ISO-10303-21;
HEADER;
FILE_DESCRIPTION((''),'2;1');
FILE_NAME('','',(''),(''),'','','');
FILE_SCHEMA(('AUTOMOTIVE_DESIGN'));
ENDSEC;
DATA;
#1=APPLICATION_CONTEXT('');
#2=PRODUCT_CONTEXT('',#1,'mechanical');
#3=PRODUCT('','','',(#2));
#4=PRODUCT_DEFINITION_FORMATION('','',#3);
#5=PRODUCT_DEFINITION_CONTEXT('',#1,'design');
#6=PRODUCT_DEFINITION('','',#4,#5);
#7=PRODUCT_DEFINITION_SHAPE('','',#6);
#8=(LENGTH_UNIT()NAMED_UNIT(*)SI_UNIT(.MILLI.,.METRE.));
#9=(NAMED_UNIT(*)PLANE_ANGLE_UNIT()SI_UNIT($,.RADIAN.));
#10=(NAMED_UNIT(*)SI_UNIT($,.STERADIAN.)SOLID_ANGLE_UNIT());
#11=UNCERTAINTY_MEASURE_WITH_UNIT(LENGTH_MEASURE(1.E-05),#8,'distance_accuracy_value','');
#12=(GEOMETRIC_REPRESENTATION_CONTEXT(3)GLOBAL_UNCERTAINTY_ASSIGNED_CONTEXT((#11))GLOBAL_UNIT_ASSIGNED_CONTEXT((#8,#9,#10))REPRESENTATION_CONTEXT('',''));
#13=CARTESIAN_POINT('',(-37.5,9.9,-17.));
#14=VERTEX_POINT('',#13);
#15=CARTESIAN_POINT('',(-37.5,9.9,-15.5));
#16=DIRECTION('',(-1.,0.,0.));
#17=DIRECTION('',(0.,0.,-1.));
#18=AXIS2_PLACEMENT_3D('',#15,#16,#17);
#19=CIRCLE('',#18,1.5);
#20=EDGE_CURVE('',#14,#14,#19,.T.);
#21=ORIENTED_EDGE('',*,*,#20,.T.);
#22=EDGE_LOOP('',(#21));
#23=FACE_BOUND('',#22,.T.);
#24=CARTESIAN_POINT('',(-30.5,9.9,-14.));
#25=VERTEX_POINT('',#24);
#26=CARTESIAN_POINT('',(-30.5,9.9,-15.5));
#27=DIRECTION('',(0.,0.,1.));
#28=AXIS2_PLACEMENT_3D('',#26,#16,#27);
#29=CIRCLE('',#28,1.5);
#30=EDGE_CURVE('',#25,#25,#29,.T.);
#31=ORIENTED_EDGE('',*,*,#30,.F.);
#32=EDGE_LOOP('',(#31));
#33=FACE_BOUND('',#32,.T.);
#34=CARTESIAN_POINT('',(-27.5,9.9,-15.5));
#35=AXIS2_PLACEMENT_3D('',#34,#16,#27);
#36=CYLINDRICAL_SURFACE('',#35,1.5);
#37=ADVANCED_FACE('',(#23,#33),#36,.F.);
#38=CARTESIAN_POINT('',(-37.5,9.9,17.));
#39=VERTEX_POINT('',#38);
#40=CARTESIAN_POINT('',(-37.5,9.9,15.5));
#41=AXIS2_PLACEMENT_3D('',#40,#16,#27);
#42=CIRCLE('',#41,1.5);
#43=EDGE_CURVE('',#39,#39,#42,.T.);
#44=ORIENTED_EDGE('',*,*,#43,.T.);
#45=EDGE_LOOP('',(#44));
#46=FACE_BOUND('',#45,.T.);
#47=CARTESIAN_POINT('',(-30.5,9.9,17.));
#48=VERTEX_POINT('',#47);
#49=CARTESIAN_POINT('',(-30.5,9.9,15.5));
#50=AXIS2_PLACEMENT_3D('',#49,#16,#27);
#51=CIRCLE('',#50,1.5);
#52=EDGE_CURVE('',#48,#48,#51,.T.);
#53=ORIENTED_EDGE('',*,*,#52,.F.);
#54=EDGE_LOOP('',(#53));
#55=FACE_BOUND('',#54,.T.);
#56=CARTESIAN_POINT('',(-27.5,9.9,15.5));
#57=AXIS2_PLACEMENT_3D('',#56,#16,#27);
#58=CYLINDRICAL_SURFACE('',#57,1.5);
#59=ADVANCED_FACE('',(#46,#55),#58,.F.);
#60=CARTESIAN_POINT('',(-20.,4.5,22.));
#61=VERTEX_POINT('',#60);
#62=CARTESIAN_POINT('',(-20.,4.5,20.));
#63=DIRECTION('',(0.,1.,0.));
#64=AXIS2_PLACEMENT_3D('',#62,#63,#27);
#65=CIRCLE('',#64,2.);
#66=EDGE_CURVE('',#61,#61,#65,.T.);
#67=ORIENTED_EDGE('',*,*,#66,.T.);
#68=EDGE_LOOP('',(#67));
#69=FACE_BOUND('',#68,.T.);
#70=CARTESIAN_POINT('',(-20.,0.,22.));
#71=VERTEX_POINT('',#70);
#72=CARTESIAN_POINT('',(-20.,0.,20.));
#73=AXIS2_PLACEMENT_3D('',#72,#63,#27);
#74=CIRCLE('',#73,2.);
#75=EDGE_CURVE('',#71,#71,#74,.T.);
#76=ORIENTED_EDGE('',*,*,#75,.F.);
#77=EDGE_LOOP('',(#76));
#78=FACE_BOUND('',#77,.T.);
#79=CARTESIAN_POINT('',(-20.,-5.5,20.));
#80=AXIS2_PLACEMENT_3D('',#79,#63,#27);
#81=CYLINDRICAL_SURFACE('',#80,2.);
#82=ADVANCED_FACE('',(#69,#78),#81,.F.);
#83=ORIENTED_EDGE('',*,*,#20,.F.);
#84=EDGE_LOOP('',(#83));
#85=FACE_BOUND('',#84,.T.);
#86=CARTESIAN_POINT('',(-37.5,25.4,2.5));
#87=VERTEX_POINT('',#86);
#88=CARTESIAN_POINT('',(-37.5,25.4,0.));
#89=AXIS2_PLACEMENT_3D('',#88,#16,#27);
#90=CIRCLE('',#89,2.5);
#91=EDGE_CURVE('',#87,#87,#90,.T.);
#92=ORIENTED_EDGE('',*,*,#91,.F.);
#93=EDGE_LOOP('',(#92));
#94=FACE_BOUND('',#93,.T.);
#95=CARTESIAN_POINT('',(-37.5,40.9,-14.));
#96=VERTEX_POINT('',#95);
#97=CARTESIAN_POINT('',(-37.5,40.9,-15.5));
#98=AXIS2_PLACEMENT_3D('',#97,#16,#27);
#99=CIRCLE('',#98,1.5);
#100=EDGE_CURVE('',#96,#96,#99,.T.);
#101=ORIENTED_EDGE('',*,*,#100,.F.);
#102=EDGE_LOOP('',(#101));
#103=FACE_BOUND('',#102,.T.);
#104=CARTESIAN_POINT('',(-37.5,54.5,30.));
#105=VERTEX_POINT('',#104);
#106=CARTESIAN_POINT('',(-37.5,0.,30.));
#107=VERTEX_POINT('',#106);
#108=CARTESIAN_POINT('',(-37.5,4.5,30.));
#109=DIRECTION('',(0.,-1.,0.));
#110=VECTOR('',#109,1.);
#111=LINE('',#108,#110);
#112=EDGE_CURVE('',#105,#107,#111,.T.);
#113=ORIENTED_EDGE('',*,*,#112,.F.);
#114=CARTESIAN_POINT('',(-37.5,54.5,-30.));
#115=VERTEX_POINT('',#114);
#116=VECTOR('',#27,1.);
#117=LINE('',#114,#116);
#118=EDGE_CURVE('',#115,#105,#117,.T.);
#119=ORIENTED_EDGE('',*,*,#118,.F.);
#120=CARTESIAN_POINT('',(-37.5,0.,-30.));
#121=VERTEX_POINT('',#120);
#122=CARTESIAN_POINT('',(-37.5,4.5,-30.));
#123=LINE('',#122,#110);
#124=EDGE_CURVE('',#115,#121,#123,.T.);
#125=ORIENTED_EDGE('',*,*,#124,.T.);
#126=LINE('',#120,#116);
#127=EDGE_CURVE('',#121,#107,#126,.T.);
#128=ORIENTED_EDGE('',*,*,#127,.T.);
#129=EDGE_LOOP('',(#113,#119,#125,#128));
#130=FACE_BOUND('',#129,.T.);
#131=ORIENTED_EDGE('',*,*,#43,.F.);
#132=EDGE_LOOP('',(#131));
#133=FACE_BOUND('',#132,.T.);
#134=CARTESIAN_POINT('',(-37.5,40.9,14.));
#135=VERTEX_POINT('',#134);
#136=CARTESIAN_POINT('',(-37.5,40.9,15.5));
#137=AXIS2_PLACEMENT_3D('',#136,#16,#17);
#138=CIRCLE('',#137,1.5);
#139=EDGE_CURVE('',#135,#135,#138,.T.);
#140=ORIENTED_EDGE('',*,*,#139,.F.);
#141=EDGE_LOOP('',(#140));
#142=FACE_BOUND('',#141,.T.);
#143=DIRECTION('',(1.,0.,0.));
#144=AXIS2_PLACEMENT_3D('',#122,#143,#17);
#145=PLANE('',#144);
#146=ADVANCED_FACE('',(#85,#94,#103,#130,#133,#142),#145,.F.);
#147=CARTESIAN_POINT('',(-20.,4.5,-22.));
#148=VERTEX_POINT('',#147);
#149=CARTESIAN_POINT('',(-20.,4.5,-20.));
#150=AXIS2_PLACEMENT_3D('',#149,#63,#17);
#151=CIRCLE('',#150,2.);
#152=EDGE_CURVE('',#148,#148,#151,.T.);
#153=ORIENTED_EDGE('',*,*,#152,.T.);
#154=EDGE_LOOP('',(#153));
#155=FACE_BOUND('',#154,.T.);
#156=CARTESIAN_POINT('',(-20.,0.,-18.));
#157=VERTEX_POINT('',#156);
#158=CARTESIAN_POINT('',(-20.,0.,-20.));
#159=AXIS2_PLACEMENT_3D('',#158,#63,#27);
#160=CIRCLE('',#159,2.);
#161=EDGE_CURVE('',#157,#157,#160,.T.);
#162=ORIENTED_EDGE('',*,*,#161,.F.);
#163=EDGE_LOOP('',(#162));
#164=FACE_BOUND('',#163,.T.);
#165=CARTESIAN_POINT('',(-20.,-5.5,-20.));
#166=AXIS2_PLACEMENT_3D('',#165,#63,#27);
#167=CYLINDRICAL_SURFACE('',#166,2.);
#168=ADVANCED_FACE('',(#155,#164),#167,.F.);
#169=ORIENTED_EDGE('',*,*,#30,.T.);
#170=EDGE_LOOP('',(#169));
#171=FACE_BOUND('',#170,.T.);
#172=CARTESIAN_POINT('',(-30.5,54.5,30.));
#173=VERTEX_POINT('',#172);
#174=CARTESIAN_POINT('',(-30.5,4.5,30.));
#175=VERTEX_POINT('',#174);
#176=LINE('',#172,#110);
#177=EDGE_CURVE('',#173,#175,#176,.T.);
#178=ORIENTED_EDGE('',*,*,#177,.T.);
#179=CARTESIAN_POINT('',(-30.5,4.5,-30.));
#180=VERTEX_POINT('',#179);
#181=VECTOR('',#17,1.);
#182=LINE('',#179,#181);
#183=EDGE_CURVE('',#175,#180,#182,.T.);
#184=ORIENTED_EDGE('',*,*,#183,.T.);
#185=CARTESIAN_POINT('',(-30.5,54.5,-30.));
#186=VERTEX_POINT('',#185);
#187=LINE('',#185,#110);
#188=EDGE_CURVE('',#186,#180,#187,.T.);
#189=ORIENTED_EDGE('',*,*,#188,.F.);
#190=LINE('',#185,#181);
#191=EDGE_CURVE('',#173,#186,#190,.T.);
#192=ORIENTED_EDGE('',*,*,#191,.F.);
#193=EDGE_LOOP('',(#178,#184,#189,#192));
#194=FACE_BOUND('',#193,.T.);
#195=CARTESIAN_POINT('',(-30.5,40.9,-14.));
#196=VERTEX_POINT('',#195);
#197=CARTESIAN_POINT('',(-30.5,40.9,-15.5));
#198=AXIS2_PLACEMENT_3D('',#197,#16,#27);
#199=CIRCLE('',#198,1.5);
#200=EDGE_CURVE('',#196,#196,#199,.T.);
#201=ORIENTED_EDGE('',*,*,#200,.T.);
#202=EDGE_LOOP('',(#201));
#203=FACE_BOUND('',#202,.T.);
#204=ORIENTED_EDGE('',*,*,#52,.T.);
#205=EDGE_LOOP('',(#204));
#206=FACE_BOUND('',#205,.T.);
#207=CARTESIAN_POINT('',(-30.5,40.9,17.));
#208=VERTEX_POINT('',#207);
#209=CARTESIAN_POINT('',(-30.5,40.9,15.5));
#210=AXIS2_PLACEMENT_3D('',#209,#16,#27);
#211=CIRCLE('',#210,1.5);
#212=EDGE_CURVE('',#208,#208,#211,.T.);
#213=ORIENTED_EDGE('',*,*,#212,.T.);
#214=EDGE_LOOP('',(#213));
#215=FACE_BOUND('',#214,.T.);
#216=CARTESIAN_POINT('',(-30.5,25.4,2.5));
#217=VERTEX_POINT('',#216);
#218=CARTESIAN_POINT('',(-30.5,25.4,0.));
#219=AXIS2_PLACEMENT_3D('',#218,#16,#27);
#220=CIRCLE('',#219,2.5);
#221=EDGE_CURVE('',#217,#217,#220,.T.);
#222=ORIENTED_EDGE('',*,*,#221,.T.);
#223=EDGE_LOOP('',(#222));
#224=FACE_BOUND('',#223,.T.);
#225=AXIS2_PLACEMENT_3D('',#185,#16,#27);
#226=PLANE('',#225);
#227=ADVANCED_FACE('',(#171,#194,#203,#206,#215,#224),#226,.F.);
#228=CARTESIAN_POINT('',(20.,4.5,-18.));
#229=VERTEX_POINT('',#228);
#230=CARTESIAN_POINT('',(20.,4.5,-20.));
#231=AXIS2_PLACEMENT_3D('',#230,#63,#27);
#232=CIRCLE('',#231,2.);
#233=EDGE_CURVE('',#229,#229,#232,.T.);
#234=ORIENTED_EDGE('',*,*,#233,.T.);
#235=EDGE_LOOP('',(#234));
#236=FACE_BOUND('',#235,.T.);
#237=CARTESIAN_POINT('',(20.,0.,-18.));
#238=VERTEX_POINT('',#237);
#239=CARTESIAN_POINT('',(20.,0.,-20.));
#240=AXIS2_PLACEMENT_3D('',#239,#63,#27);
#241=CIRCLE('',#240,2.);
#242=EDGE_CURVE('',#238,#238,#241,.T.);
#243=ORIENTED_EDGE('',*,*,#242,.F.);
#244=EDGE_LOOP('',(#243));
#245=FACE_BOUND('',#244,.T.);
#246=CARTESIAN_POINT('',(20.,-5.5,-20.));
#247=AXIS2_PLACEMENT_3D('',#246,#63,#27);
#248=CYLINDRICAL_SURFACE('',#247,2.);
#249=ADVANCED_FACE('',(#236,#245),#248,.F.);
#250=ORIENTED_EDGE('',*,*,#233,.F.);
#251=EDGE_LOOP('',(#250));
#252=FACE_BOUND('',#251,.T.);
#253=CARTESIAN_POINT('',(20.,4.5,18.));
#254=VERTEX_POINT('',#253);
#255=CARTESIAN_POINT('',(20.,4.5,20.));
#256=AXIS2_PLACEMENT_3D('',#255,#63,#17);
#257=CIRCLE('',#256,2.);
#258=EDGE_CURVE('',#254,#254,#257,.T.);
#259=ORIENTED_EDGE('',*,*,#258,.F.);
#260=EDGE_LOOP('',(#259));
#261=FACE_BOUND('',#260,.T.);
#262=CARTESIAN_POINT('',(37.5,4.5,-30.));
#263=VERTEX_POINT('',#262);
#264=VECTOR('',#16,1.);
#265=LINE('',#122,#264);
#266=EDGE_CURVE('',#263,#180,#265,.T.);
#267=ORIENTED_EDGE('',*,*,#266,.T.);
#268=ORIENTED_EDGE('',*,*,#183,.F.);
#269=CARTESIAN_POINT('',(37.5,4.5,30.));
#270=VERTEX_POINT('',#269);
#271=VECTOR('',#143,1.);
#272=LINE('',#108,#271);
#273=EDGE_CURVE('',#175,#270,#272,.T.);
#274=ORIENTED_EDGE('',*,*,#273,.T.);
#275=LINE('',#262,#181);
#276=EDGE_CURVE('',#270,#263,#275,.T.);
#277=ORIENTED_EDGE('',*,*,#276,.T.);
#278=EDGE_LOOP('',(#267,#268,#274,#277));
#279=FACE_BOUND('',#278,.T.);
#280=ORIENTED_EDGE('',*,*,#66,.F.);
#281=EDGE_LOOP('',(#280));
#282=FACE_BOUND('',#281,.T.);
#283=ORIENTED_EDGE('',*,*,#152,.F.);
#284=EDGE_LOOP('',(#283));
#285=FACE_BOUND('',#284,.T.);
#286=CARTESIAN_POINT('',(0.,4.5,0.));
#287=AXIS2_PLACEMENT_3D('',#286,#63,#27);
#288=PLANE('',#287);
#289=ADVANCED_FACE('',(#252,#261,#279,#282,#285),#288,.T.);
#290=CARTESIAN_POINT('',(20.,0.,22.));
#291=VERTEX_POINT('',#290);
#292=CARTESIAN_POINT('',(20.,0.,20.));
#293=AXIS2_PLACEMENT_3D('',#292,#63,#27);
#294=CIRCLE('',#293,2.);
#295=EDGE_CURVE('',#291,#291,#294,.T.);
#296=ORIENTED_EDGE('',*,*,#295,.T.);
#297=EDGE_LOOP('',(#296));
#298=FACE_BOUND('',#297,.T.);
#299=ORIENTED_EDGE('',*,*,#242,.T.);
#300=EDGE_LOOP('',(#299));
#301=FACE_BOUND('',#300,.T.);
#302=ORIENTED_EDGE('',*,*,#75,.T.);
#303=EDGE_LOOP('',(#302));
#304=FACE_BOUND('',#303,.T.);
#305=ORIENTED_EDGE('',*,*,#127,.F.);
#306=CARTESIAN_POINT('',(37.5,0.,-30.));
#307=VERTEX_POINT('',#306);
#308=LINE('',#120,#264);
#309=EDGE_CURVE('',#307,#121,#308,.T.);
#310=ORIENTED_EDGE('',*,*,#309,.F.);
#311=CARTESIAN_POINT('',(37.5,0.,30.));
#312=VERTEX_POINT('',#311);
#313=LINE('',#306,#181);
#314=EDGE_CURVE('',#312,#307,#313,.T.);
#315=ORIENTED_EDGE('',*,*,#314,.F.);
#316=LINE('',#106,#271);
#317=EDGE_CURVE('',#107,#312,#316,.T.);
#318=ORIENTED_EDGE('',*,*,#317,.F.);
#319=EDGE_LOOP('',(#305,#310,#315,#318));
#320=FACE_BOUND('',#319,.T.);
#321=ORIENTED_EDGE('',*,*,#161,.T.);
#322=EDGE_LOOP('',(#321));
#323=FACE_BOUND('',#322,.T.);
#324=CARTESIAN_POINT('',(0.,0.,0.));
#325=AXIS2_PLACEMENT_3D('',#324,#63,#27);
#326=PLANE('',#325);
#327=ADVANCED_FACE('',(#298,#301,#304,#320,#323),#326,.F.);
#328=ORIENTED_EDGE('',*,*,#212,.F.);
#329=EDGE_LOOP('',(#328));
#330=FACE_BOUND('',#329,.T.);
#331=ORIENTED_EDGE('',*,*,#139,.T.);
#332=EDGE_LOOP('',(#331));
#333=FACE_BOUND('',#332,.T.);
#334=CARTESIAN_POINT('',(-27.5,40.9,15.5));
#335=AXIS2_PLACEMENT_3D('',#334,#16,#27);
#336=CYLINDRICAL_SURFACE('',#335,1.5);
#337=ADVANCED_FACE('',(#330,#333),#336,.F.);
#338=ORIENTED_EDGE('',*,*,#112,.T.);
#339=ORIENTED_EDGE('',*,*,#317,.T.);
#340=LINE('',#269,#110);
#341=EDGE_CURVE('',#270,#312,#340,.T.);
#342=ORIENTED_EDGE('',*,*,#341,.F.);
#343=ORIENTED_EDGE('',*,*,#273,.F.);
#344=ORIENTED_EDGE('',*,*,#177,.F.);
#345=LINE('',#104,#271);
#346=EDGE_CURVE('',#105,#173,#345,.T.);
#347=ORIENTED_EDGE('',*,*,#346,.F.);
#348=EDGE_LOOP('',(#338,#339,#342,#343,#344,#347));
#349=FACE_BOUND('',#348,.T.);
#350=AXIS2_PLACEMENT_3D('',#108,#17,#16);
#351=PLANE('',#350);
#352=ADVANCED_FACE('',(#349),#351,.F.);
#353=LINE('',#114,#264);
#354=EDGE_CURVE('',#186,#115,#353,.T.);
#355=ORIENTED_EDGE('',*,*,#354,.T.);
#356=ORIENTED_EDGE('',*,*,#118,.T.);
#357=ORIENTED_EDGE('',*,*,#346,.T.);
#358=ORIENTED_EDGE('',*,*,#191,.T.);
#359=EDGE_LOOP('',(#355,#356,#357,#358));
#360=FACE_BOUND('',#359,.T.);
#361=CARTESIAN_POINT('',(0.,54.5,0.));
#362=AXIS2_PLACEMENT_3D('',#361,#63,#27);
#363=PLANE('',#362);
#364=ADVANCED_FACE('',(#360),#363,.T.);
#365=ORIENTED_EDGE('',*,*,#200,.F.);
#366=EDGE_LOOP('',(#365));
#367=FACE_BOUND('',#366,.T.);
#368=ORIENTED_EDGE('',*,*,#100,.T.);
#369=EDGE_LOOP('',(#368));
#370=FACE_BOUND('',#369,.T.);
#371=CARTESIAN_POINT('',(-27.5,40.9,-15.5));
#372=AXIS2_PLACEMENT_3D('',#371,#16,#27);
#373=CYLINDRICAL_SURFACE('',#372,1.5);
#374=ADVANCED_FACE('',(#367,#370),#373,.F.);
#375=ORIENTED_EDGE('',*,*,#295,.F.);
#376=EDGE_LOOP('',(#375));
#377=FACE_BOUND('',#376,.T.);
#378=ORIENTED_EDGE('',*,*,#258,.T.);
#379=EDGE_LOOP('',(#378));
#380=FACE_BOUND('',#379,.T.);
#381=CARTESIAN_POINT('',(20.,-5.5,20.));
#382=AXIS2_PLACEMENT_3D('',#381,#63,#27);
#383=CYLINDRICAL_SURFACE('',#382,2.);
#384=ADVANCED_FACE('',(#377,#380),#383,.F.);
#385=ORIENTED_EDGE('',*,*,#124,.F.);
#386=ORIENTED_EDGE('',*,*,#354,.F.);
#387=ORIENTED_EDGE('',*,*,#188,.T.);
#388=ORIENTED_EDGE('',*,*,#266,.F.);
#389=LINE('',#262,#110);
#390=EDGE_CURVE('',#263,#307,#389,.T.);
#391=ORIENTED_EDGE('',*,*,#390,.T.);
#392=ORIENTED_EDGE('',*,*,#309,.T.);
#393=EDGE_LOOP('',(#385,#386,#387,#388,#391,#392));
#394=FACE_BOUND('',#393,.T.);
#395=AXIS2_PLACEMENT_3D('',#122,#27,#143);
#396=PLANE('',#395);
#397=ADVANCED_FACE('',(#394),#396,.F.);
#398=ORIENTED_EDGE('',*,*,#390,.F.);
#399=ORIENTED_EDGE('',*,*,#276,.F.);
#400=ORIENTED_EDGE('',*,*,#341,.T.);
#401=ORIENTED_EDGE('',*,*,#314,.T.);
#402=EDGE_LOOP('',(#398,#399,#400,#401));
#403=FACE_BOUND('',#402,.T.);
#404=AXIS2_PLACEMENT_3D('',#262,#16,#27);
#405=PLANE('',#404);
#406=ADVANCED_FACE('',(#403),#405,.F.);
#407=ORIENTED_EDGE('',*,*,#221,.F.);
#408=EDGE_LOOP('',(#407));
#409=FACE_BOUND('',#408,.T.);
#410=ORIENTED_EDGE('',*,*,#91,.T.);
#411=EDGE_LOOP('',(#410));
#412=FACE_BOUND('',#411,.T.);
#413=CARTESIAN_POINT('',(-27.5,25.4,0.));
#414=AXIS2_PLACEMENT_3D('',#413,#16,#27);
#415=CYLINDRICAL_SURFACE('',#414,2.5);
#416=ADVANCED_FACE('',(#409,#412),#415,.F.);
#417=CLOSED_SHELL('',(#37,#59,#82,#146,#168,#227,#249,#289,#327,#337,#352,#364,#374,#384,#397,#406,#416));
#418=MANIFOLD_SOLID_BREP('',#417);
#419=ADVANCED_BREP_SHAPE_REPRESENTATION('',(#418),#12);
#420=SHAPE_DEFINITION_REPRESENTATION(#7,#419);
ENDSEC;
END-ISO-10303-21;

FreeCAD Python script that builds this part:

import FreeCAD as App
import Part
import Sketcher


def add_polygon(sketch, points):
    """Adds a closed chain of lines whose ends are joined by coincident constraints."""
    first, n = sketch.GeometryCount, len(points)
    for a, b in zip(points, points[1:] + points[:1]):
        sketch.addGeometry(Part.LineSegment(App.Vector(*a, 0), App.Vector(*b, 0)), False)
    for i in range(n):
        sketch.addConstraint(Sketcher.Constraint("Coincident", first + i, 2, first + (i + 1) % n, 1))

doc = App.newDocument("Part")
body = doc.addObject("PartDesign::Body", "Body")

# Sketch on XZ plane
sketch1 = body.newObject("Sketcher::SketchObject", "Sketch")
sketch1.AttachmentSupport = (doc.getObject("XZ_Plane"), [""])
sketch1.MapMode = "FlatFace"
add_polygon(sketch1, [(-37.5, -30), (-37.5, 30), (37.5, 30), (37.5, -30)])  # lines 0-3
sketch1.addConstraint(Sketcher.Constraint("Vertical", 0))
sketch1.addConstraint(Sketcher.Constraint("Horizontal", 1))
sketch1.addConstraint(Sketcher.Constraint("Vertical", 2))
sketch1.addConstraint(Sketcher.Constraint("Horizontal", 3))
sketch1.addConstraint(Sketcher.Constraint("Symmetric", 0, 2, 2, 2, -1, 1))
sketch1.addConstraint(Sketcher.Constraint("DistanceX", 1, 1, 1, 2, 75.0))
sketch1.addConstraint(Sketcher.Constraint("DistanceY", 0, 1, 0, 2, 60.0))
pad1 = body.newObject("PartDesign::Pad", "Pad")
pad1.Profile = sketch1
pad1.Length = 4.5
pad1.Reversed = True

# Sketch on XZ plane
sketch2 = body.newObject("Sketcher::SketchObject", "Sketch001")
sketch2.AttachmentSupport = (doc.getObject("XZ_Plane"), [""])
sketch2.MapMode = "FlatFace"
sketch2.AttachmentOffset = App.Placement(App.Vector(0, 0, -4.5), App.Rotation())
add_polygon(sketch2, [(-37.5, -30), (-37.5, 30), (-30.5, 30), (-30.5, -30)])  # lines 0-3
sketch2.addConstraint(Sketcher.Constraint("Vertical", 0))
sketch2.addConstraint(Sketcher.Constraint("Horizontal", 1))
sketch2.addConstraint(Sketcher.Constraint("Vertical", 2))
sketch2.addConstraint(Sketcher.Constraint("Horizontal", 3))
sketch2.addConstraint(Sketcher.Constraint("DistanceX", 1, 1, 1, 2, 7.0))
sketch2.addConstraint(Sketcher.Constraint("DistanceY", 0, 1, 0, 2, 60.0))
sketch2.addConstraint(Sketcher.Constraint("DistanceY", -1, 1, 0, 2, 30.0))
sketch2.addConstraint(Sketcher.Constraint("DistanceX", 0, 2, -1, 1, 37.5))
pad2 = body.newObject("PartDesign::Pad", "Pad001")
pad2.Profile = sketch2
pad2.Length = 50
pad2.Reversed = True

# Sketch on YZ plane
sketch3 = body.newObject("Sketcher::SketchObject", "Sketch002")
sketch3.AttachmentSupport = (doc.getObject("YZ_Plane"), [""])
sketch3.MapMode = "FlatFace"
sketch3.AttachmentOffset = App.Placement(App.Vector(0, 0, -37.5), App.Rotation())
sketch3.addGeometry(Part.Circle(App.Vector(40.9, -15.5, 0), App.Vector(0, 0, 1), 1.5), False)
sketch3.addGeometry(Part.Circle(App.Vector(40.9, 15.5, 0), App.Vector(0, 0, 1), 1.5), False)
sketch3.addGeometry(Part.Circle(App.Vector(9.9, 15.5, 0), App.Vector(0, 0, 1), 1.5), False)
sketch3.addGeometry(Part.Circle(App.Vector(9.9, -15.5, 0), App.Vector(0, 0, 1), 1.5), False)
sketch3.addGeometry(Part.Circle(App.Vector(25.4, 0, 0), App.Vector(0, 0, 1), 2.5), False)
sketch3.addConstraint(Sketcher.Constraint("Equal", 0, 1))
sketch3.addConstraint(Sketcher.Constraint("Equal", 1, 2))
sketch3.addConstraint(Sketcher.Constraint("Equal", 2, 3))
sketch3.addConstraint(Sketcher.Constraint("Symmetric", 0, 3, 1, 3, -1))
sketch3.addConstraint(Sketcher.Constraint("Symmetric", 2, 3, 3, 3, -1))
sketch3.addConstraint(Sketcher.Constraint("PointOnObject", 4, 3, -1))
sketch3.addConstraint(Sketcher.Constraint("Horizontal", 1, 3, 2, 3))
sketch3.addConstraint(Sketcher.Constraint("Diameter", 0, 3.0))
sketch3.addConstraint(Sketcher.Constraint("Diameter", 4, 5.0))
sketch3.addConstraint(Sketcher.Constraint("DistanceY", 0, 3, 1, 3, 31.0))
sketch3.addConstraint(Sketcher.Constraint("DistanceX", 2, 3, 1, 3, 31.0))
sketch3.addConstraint(Sketcher.Constraint("DistanceX", -1, 1, 0, 3, 40.9))
sketch3.addConstraint(Sketcher.Constraint("DistanceX", -1, 1, 4, 3, 25.4))
pocket1 = body.newObject("PartDesign::Pocket", "Pocket")
pocket1.Profile = sketch3
pocket1.Length = 10
pocket1.Reversed = True

# Sketch on XZ plane
sketch4 = body.newObject("Sketcher::SketchObject", "Sketch003")
sketch4.AttachmentSupport = (doc.getObject("XZ_Plane"), [""])
sketch4.MapMode = "FlatFace"
sketch4.AttachmentOffset = App.Placement(App.Vector(0, 0, -4.5), App.Rotation())
sketch4.addGeometry(Part.Circle(App.Vector(20, -20, 0), App.Vector(0, 0, 1), 2), False)
sketch4.addGeometry(Part.Circle(App.Vector(-20, -20, 0), App.Vector(0, 0, 1), 2), False)
sketch4.addGeometry(Part.Circle(App.Vector(20, 20, 0), App.Vector(0, 0, 1), 2), False)
sketch4.addGeometry(Part.Circle(App.Vector(-20, 20, 0), App.Vector(0, 0, 1), 2), False)
sketch4.addConstraint(Sketcher.Constraint("Equal", 0, 1))
sketch4.addConstraint(Sketcher.Constraint("Equal", 1, 2))
sketch4.addConstraint(Sketcher.Constraint("Equal", 2, 3))
sketch4.addConstraint(Sketcher.Constraint("Symmetric", 1, 3, 2, 3, -1, 1))
sketch4.addConstraint(Sketcher.Constraint("Symmetric", 0, 3, 3, 3, -1, 1))
sketch4.addConstraint(Sketcher.Constraint("Symmetric", 0, 3, 1, 3, -2))
sketch4.addConstraint(Sketcher.Constraint("Diameter", 0, 4.0))
sketch4.addConstraint(Sketcher.Constraint("DistanceX", -1, 1, 0, 3, 20.0))
sketch4.addConstraint(Sketcher.Constraint("DistanceY", 0, 3, -1, 1, 20.0))
pocket2 = body.newObject("PartDesign::Pocket", "Pocket001")
pocket2.Profile = sketch4
pocket2.Length = 10
pocket2.Reversed = True

doc.recompute()
